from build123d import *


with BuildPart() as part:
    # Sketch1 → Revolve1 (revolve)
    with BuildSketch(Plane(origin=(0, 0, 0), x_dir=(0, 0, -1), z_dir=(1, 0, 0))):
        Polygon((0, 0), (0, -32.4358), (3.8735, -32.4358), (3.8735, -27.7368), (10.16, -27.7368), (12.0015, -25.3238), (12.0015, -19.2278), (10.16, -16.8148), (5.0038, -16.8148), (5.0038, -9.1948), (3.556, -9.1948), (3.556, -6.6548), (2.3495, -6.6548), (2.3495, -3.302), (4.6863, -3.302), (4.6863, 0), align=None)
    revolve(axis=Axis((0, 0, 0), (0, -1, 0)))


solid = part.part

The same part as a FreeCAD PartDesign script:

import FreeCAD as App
import Part
import Sketcher
from FreeCAD import Vector
Q = App.Units.Quantity


def add_polygon(sketch, points):
    """Adds a closed chain of lines whose ends are joined by coincident constraints."""
    first, n = sketch.GeometryCount, len(points)
    for a, b in zip(points, points[1:] + points[:1]):
        sketch.addGeometry(Part.LineSegment(App.Vector(*a, 0), App.Vector(*b, 0)), False)
    for i in range(n):
        sketch.addConstraint(Sketcher.Constraint("Coincident", first + i, 2, first + (i + 1) % n, 1))

doc = App.newDocument("Part")
body = doc.addObject("PartDesign::Body", "Body")

# Sketch on YZ plane
sketch1 = body.newObject("Sketcher::SketchObject", "Sketch")
sketch1.AttachmentSupport = (doc.getObject("YZ_Plane"), [""])
sketch1.MapMode = "FlatFace"
add_polygon(sketch1, [(0, 0), (-32.4, 0), (-32.4, -3.9), (-27.7, -3.9), (-27.7, -10.2), (-25.3, -12), (-19.2, -12), (-16.8, -10.2), (-16.8, -5), (-9.2, -5), (-9.2, -3.6), (-6.7, -3.6), (-6.7, -2.3), (-3.3, -2.3), (-3.3, -4.7), (0, -4.7)])  # lines 0-15
sketch1.addConstraint(Sketcher.Constraint("Horizontal", 0))
sketch1.addConstraint(Sketcher.Constraint("Vertical", 1))
sketch1.addConstraint(Sketcher.Constraint("Horizontal", 2))
sketch1.addConstraint(Sketcher.Constraint("Vertical", 3))
sketch1.addConstraint(Sketcher.Constraint("Horizontal", 5))
sketch1.addConstraint(Sketcher.Constraint("Vertical", 7))
sketch1.addConstraint(Sketcher.Constraint("Horizontal", 8))
sketch1.addConstraint(Sketcher.Constraint("Vertical", 9))
sketch1.addConstraint(Sketcher.Constraint("Horizontal", 10))
sketch1.addConstraint(Sketcher.Constraint("Vertical", 11))
sketch1.addConstraint(Sketcher.Constraint("Horizontal", 12))
sketch1.addConstraint(Sketcher.Constraint("Vertical", 13))
sketch1.addConstraint(Sketcher.Constraint("Horizontal", 14))
sketch1.addConstraint(Sketcher.Constraint("Vertical", 15))
sketch1.addConstraint(Sketcher.Constraint("Coincident", 15, 2, -1, 1))
sketch1.addConstraint(Sketcher.Constraint("Horizontal", 3, 2, 6, 2))
sketch1.addConstraint(Sketcher.Constraint("Equal", 4, 6))
sketch1.addConstraint(Sketcher.Constraint("DistanceX", 8, 1, 8, 2, Q("0.3 in")))
sketch1.addConstraint(Sketcher.Constraint("DistanceX", 10, 1, 10, 2, Q("0.1 in")))
sketch1.addConstraint(Sketcher.Constraint("DistanceX", 5, 1, 5, 2, Q("0.24 in")))
sketch1.addConstraint(Sketcher.Constraint("DistanceX", 14, 1, 14, 2, Q("0.13 in")))
sketch1.addConstraint(Sketcher.Constraint("DistanceY", 3, 2, -1, 1, Q("0.4 in")))
sketch1.addConstraint(Sketcher.Constraint("DistanceX", 0, 2, 0, 1, Q("1.277 in")))
sketch1.addConstraint(Sketcher.Constraint("DistanceX", 2, 1, 2, 2, Q("0.185 in")))
sketch1.addConstraint(Sketcher.Constraint("DistanceX", 12, 1, 12, 2, Q("0.132 in")))
sketch1.addConstraint(Sketcher.Constraint("DistanceY", 7, 1, 7, 2, Q("0.203 in")))
sketch1.addConstraint(Sketcher.Constraint("DistanceY", 9, 1, 9, 2, Q("0.057 in")))
sketch1.addConstraint(Sketcher.Constraint("DistanceY", 13, 2, 13, 1, Q("0.092 in")))
sketch1.addConstraint(Sketcher.Constraint("DistanceY", 4, 2, 2, 2, Q("0.32 in")))
sketch1.addConstraint(Sketcher.Constraint("DistanceY", 1, 2, 1, 1, Q("0.1525 in")))
sketch1.addConstraint(Sketcher.Constraint("DistanceY", 11, 1, 11, 2, Q("0.0475 in")))
revolution = body.newObject("PartDesign::Revolution", "Revolution")
revolution.Profile = sketch1
revolution.ReferenceAxis = (sketch1, ["H_Axis"])
revolution.Angle = 360

doc.recompute()
